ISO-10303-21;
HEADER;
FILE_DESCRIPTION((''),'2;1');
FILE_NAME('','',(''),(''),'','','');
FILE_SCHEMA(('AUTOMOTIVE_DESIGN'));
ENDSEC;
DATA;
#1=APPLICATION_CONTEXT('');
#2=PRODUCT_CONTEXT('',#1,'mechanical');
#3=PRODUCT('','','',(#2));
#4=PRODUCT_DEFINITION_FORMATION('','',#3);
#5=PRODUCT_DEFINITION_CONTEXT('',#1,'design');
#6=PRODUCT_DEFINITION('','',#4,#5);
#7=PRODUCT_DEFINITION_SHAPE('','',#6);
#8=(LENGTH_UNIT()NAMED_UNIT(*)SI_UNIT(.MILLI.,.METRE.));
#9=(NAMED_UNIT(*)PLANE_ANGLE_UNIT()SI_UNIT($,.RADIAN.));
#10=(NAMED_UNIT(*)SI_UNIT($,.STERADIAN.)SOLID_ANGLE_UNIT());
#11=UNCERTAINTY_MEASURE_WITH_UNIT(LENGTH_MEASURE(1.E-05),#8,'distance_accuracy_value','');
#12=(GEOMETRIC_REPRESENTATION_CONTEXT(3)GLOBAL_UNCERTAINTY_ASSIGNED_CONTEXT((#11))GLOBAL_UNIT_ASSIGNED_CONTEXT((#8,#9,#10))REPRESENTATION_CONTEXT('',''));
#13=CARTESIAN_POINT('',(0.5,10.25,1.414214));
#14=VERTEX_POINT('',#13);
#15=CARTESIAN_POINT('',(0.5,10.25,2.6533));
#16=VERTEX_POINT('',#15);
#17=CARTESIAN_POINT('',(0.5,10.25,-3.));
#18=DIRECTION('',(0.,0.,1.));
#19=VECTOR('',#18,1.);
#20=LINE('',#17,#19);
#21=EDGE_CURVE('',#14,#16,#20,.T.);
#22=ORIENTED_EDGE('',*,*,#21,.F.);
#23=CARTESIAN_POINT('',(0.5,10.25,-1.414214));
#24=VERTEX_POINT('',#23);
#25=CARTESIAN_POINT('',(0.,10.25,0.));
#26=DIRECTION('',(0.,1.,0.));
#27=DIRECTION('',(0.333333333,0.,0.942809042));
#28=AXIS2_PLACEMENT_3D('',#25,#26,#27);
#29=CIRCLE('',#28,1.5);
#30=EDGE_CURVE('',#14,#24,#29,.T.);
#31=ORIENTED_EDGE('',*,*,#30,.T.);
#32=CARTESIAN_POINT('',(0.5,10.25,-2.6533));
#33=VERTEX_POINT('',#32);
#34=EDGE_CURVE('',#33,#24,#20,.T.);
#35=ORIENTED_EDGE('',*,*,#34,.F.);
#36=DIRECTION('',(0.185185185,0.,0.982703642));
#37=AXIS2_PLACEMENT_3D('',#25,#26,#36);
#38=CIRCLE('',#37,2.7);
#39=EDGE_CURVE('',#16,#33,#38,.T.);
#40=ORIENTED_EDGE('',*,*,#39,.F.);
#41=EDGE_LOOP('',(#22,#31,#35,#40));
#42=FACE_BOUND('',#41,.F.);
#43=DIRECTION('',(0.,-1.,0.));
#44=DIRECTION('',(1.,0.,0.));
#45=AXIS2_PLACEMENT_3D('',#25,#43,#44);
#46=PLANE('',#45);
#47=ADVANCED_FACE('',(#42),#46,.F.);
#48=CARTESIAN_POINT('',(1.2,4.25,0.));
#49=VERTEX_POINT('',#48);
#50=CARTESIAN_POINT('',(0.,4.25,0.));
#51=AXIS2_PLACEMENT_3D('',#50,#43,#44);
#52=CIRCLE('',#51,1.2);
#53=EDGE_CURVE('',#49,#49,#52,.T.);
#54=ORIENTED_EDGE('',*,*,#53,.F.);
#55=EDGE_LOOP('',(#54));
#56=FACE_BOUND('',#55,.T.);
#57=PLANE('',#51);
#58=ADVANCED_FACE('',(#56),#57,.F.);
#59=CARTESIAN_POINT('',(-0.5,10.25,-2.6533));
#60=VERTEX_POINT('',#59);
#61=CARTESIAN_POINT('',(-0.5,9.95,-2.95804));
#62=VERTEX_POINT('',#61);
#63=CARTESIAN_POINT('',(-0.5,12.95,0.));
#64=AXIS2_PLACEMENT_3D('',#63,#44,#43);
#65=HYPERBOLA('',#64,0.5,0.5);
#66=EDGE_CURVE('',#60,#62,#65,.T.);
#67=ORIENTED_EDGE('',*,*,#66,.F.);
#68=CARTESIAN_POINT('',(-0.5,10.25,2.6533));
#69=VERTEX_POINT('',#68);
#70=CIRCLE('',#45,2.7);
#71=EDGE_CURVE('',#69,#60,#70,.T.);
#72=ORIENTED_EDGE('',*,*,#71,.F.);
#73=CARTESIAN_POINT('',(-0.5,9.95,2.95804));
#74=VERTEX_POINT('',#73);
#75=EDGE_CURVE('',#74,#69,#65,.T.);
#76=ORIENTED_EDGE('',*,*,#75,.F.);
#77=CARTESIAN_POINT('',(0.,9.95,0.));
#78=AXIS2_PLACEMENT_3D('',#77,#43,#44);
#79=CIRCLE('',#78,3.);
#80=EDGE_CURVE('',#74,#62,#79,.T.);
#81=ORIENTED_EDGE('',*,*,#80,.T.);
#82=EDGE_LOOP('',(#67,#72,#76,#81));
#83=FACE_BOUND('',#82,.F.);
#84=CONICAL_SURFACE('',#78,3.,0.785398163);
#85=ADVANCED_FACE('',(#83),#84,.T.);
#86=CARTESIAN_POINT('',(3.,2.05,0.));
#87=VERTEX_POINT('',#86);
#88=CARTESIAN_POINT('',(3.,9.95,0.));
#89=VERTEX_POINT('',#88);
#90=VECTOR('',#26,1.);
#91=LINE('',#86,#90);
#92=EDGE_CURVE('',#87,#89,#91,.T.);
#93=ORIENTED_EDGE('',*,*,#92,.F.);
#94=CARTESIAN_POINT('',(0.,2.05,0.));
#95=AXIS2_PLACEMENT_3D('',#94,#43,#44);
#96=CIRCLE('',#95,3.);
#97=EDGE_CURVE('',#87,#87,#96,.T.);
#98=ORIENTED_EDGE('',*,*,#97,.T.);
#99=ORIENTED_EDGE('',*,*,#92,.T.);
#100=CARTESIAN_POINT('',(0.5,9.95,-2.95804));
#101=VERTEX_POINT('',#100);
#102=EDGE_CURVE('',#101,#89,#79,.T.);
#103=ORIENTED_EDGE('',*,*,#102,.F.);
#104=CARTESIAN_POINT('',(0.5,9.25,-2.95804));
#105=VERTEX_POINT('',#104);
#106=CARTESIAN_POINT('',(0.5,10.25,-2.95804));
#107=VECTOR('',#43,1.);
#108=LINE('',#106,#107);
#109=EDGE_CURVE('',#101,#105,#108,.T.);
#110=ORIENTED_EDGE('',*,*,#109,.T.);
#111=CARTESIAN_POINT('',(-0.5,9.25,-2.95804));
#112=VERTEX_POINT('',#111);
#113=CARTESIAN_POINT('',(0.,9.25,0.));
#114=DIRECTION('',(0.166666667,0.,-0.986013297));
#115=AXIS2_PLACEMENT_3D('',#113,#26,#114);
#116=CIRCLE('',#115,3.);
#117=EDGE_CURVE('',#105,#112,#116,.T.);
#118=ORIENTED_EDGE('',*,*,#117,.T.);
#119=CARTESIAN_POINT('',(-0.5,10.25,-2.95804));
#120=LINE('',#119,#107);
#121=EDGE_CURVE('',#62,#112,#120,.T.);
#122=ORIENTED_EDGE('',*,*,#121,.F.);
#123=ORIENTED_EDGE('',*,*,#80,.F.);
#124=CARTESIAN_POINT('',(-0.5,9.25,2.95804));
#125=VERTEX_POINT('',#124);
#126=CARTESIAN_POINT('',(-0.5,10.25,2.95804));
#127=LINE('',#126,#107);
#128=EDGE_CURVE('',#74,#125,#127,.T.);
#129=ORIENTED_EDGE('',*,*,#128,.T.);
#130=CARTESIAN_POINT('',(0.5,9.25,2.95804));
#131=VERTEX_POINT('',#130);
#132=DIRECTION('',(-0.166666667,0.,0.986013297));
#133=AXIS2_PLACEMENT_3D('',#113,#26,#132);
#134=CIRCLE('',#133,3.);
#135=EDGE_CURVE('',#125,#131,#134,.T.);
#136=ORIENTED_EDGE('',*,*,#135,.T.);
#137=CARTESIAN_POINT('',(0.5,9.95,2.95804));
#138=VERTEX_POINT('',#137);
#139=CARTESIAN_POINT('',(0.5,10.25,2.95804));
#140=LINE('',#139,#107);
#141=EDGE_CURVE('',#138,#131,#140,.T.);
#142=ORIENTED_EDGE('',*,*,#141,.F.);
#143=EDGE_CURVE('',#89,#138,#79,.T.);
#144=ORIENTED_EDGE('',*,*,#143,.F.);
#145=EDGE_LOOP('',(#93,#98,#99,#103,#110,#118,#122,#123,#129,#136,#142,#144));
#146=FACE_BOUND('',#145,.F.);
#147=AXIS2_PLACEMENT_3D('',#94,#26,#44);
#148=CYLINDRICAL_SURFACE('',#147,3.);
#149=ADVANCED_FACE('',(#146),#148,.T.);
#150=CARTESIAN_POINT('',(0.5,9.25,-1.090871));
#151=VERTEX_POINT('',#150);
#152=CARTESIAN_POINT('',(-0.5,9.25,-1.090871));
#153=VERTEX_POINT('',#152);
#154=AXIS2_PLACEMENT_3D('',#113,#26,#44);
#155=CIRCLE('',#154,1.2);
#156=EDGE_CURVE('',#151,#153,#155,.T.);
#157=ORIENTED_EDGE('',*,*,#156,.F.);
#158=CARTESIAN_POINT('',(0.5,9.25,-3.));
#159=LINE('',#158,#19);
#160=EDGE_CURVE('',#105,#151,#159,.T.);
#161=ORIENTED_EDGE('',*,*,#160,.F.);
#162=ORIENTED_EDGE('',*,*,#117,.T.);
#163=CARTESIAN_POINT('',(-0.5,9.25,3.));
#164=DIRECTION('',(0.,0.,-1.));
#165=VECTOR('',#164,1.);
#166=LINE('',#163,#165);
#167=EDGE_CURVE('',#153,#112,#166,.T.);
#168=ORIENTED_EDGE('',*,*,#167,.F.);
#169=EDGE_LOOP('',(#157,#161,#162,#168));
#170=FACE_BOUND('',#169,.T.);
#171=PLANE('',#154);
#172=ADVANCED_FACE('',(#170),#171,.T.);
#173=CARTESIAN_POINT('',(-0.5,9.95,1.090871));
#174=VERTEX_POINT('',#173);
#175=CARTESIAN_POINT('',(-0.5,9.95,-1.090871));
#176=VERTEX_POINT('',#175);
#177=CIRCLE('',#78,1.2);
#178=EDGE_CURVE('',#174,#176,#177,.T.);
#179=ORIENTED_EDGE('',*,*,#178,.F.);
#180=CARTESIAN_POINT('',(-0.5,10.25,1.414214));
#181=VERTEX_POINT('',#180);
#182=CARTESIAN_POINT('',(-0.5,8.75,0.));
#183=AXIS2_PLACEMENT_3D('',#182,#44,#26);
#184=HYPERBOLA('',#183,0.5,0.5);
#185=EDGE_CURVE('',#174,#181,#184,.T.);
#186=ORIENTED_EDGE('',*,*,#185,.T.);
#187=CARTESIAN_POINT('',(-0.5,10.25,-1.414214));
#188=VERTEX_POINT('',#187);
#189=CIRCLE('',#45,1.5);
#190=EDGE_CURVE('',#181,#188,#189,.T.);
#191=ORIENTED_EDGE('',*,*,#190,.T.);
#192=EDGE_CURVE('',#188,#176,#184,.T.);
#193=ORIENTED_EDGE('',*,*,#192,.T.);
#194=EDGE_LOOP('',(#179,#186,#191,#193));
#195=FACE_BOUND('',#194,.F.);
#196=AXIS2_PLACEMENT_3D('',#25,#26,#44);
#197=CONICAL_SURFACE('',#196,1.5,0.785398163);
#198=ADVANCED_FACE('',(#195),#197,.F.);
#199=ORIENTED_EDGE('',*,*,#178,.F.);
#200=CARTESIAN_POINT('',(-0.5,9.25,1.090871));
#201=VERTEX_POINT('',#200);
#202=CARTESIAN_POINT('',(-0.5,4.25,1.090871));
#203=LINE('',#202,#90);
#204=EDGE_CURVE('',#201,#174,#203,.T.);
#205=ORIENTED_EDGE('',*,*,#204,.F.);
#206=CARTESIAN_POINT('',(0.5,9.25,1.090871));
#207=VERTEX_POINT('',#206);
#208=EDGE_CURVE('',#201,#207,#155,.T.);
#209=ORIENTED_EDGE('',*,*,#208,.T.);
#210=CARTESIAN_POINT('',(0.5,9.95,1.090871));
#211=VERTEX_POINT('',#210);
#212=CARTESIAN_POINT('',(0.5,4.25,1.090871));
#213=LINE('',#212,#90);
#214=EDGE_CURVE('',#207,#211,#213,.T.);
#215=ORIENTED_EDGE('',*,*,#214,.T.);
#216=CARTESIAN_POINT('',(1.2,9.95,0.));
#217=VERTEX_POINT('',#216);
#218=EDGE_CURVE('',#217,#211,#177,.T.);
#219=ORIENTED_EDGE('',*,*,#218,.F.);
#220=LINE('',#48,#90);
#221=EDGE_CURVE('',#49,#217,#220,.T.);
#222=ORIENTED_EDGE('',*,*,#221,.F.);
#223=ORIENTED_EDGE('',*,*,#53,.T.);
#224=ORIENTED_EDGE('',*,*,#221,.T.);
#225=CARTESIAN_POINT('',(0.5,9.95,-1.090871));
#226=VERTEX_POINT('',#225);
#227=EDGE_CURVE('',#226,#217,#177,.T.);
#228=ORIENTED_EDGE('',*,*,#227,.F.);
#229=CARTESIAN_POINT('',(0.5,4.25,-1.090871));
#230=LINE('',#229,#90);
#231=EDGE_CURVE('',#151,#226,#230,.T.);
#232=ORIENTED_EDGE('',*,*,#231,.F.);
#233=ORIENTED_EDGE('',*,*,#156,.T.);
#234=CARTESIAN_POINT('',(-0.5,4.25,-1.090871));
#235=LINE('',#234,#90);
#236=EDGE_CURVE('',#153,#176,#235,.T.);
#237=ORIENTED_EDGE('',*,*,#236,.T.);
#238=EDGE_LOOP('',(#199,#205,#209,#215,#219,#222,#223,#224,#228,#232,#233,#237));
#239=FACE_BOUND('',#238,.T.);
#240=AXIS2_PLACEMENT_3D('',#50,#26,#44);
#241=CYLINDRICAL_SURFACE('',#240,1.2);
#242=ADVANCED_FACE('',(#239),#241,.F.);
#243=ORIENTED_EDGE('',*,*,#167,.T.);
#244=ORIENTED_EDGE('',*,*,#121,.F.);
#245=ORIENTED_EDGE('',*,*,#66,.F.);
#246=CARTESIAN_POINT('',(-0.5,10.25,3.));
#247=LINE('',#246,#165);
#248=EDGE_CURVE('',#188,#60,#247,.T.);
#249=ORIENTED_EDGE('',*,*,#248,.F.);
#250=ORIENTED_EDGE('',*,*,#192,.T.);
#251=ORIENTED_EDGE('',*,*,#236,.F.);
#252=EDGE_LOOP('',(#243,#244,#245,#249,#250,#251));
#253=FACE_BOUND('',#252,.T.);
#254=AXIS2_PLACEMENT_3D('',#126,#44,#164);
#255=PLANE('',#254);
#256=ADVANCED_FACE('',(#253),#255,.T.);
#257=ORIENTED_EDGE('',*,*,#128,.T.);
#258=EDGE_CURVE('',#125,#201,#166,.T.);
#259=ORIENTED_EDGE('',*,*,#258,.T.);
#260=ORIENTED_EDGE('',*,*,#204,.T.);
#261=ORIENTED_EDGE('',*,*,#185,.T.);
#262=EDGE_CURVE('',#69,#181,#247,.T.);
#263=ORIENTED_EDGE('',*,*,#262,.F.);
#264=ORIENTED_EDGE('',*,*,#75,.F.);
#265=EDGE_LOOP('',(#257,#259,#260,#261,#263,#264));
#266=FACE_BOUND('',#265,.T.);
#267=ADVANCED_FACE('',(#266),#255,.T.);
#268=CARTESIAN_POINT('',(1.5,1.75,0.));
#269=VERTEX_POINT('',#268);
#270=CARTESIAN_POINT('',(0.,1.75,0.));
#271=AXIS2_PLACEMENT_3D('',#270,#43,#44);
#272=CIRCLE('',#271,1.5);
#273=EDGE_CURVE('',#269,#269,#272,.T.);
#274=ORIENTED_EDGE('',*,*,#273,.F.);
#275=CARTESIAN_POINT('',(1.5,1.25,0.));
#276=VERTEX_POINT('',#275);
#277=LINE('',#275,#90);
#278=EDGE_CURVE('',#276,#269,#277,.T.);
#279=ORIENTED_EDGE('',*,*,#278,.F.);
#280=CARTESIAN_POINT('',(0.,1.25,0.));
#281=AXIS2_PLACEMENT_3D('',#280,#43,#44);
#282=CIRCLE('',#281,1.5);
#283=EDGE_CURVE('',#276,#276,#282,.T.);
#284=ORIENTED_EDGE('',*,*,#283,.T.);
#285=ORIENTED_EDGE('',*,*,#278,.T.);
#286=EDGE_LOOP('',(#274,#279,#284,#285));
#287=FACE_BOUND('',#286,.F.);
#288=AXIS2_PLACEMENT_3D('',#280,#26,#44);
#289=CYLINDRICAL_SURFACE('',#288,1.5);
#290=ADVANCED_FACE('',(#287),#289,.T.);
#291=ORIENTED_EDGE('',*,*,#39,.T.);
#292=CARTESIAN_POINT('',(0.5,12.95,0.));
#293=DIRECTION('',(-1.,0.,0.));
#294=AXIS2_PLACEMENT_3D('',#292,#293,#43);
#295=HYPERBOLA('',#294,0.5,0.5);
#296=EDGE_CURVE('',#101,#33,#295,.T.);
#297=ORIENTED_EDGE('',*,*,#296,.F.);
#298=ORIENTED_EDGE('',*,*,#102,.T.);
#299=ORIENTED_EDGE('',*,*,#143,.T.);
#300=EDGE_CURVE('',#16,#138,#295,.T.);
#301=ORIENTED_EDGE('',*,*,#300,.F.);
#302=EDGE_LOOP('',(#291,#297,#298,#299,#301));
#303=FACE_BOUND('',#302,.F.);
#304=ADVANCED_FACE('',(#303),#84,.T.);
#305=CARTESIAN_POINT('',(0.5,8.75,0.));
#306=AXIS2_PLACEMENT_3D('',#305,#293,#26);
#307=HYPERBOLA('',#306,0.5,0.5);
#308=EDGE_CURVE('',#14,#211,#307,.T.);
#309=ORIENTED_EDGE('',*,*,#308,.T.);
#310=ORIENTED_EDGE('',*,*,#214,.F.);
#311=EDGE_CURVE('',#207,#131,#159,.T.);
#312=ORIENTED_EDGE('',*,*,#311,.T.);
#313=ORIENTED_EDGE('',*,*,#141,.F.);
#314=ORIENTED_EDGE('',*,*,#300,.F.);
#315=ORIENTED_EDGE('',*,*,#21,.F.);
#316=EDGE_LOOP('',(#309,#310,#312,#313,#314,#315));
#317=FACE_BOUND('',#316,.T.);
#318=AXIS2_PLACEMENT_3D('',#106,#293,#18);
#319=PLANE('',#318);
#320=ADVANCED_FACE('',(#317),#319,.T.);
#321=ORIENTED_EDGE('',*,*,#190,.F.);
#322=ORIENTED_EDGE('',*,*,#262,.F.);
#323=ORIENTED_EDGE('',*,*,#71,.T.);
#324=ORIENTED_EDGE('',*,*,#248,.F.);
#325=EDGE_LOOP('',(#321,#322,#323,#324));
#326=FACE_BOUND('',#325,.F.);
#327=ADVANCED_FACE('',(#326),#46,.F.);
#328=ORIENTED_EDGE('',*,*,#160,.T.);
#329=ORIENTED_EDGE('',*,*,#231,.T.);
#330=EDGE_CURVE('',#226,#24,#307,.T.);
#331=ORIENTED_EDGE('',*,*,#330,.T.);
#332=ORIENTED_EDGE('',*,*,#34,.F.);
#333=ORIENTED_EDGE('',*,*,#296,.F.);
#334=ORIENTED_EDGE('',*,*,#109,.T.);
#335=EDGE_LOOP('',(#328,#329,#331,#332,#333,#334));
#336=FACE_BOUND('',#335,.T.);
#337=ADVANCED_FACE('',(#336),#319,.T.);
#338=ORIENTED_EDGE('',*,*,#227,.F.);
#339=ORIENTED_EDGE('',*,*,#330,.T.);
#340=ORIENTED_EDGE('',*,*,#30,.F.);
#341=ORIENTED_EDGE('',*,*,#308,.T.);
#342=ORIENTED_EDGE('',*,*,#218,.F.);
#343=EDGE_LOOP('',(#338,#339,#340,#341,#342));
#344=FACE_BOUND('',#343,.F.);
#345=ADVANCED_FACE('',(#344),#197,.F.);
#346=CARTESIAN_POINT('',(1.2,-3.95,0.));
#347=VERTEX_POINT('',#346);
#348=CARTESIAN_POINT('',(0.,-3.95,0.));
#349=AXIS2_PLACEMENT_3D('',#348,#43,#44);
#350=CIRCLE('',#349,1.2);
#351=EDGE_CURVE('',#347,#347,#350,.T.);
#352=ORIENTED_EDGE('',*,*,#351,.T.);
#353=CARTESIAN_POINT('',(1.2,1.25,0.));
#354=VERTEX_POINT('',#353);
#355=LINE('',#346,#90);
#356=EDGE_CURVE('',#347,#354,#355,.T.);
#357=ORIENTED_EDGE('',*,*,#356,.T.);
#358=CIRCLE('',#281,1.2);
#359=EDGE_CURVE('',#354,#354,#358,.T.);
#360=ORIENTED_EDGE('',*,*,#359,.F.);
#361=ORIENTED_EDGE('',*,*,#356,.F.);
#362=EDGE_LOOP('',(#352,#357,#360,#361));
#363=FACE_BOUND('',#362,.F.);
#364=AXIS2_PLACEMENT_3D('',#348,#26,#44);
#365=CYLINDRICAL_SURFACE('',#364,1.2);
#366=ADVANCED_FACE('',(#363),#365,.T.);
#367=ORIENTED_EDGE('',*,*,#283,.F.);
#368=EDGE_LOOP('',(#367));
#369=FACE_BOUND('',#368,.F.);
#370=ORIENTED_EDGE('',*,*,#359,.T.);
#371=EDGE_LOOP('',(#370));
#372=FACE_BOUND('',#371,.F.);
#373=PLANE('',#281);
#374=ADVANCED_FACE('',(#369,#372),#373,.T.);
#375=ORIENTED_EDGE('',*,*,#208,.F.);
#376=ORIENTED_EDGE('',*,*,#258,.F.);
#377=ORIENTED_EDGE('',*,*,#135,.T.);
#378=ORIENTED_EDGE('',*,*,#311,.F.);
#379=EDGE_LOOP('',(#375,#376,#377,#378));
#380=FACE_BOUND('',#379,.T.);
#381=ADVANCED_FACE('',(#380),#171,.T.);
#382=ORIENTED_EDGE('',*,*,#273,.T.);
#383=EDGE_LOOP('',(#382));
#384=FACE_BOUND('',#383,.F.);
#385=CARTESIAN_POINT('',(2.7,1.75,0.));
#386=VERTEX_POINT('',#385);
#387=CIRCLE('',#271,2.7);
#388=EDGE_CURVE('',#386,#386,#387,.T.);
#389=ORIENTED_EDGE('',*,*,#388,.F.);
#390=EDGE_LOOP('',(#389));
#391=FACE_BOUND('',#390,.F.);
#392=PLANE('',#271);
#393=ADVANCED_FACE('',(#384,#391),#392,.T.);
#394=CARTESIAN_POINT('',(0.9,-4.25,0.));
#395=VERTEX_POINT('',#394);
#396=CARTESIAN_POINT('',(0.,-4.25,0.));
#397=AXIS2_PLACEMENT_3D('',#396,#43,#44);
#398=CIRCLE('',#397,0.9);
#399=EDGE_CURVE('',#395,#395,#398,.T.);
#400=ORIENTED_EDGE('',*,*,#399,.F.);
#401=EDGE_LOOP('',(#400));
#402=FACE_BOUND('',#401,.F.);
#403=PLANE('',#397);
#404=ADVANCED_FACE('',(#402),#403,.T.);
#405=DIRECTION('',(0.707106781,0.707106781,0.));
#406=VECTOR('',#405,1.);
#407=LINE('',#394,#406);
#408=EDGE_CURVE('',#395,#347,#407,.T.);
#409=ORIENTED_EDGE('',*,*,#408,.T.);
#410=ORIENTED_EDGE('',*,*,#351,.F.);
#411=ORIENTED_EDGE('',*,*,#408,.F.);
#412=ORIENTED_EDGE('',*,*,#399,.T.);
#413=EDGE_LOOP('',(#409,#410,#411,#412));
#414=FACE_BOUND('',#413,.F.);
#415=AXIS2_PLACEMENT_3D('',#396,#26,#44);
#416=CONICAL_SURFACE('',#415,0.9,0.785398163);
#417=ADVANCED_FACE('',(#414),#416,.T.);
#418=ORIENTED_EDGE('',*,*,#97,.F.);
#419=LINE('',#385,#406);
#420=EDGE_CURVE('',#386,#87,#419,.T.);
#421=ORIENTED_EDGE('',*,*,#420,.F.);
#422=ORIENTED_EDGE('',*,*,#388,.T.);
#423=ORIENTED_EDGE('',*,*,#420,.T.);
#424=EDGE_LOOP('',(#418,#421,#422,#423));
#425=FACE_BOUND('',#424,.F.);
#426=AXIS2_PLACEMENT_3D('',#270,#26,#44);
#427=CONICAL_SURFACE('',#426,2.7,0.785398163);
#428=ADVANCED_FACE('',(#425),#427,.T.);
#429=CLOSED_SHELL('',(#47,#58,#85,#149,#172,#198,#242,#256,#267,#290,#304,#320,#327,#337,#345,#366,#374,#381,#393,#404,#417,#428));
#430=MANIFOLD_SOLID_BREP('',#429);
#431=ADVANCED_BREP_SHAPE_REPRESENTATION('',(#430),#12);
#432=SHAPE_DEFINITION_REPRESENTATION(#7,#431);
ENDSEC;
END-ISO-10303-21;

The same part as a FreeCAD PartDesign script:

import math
import FreeCAD as App
import Part
import Sketcher
Q = App.Units.Quantity


def add_polygon(sketch, points):
    """Adds a closed chain of lines whose ends are joined by coincident constraints."""
    first, n = sketch.GeometryCount, len(points)
    for a, b in zip(points, points[1:] + points[:1]):
        sketch.addGeometry(Part.LineSegment(App.Vector(*a, 0), App.Vector(*b, 0)), False)
    for i in range(n):
        sketch.addConstraint(Sketcher.Constraint("Coincident", first + i, 2, first + (i + 1) % n, 1))

doc = App.newDocument("Part")
body = doc.addObject("PartDesign::Body", "Body")

sketch1 = body.newObject("Sketcher::SketchObject", "Sketch")
sketch1.AttachmentSupport = (doc.getObject("XY_Plane"), [""])
sketch1.MapMode = "FlatFace"
add_polygon(sketch1, [(0, 4.25), (0, -4.25), (0.9, -4.25), (1.2, -3.95), (1.2, 1.25), (1.5, 1.25), (1.5, 1.75), (2.7, 1.75), (3, 2.05), (3, 9.95), (2.7, 10.25), (1.5, 10.25), (1.2, 9.95), (1.2, 4.25)])
sketch1.addConstraint(Sketcher.Constraint("Vertical", 0))
sketch1.addConstraint(Sketcher.Constraint("Horizontal", 1))
sketch1.addConstraint(Sketcher.Constraint("Vertical", 3))
sketch1.addConstraint(Sketcher.Constraint("Horizontal", 4))
sketch1.addConstraint(Sketcher.Constraint("Vertical", 5))
sketch1.addConstraint(Sketcher.Constraint("Horizontal", 6))
sketch1.addConstraint(Sketcher.Constraint("Vertical", 8))
sketch1.addConstraint(Sketcher.Constraint("Horizontal", 10))
sketch1.addConstraint(Sketcher.Constraint("Vertical", 12))
sketch1.addConstraint(Sketcher.Constraint("Horizontal", 13))
sketch1.addConstraint(Sketcher.Constraint("Symmetric", 0, 2, 13, 2, -1, 1))
sketch1.addConstraint(Sketcher.Constraint("Parallel", 2, 7))
sketch1.addConstraint(Sketcher.Constraint("Perpendicular", 7, 9))
sketch1.addConstraint(Sketcher.Constraint("Perpendicular", 9, 11))
sketch1.addConstraint(Sketcher.Constraint("Horizontal", 8, 2, 11, 2))
sketch1.addConstraint(Sketcher.Constraint("Vertical", 6, 2, 9, 2))
sketch1.addConstraint(Sketcher.Constraint("Vertical", 5, 2, 10, 2))
sketch1.addConstraint(Sketcher.Constraint("Vertical", 3, 2, 11, 2))
sketch1.addConstraint(Sketcher.Constraint("Equal", 10, 13))
sketch1.addConstraint(Sketcher.Constraint("Equal", 2, 7))
sketch1.addConstraint(Sketcher.Constraint("Equal", 7, 9))
sketch1.addConstraint(Sketcher.Constraint("DistanceX", 4, 1, 4, 2, Q("0.3 mm")))
sketch1.addConstraint(Sketcher.Constraint("DistanceY", 0, 2, 0, 1, Q("8.5 mm")))
sketch1.addConstraint(Sketcher.Constraint("DistanceY", 5, 1, 5, 2, Q("0.5 mm")))
sketch1.addConstraint(Sketcher.Constraint("DistanceX", -1, 1, 7, 2, Q("3 mm")))
sketch1.addConstraint(Sketcher.Constraint("DistanceY", 1, 2, 5, 2, Q("6 mm")))
sketch1.addConstraint(Sketcher.Constraint("DistanceY", 6, 2, 9, 2, Q("8.5 mm")))
revolution = body.newObject("PartDesign::Revolution", "Revolution")
revolution.Profile = sketch1
revolution.ReferenceAxis = (sketch1, ["V_Axis"])
revolution.Angle = 360

sketch2 = body.newObject("Sketcher::SketchObject", "Sketch001")
sketch2.AttachmentSupport = (doc.getObject("XZ_Plane"), [""])
sketch2.MapMode = "FlatFace"
sketch2.AttachmentOffset = App.Placement(App.Vector(0, 0, -10.25), App.Rotation())
sketch2.addGeometry(Part.ArcOfCircle(Part.Circle(App.Vector(0, 0, 0), App.Vector(0, 0, 1), 3), math.radians(-99.59), math.radians(-80.41)), False)
sketch2.addGeometry(Part.LineSegment(App.Vector(-0.5, -3, 0), App.Vector(-0.5, 3, 0)), False)
sketch2.addGeometry(Part.ArcOfCircle(Part.Circle(App.Vector(0, 0, 0), App.Vector(0, 0, 1), 3), math.radians(80.41), math.radians(99.59)), False)
sketch2.addGeometry(Part.LineSegment(App.Vector(0.5, 3, 0), App.Vector(0.5, -3, 0)), False)
sketch2.addConstraint(Sketcher.Constraint("Coincident", 0, 1, 1, 1))
sketch2.addConstraint(Sketcher.Constraint("Coincident", 1, 2, 2, 2))
sketch2.addConstraint(Sketcher.Constraint("Coincident", 2, 1, 3, 1))
sketch2.addConstraint(Sketcher.Constraint("Coincident", 3, 2, 0, 2))
sketch2.addConstraint(Sketcher.Constraint("Vertical", 1))
sketch2.addConstraint(Sketcher.Constraint("Vertical", 3))
sketch2.addConstraint(Sketcher.Constraint("Coincident", 0, 3, -1, 1))
sketch2.addConstraint(Sketcher.Constraint("Coincident", 2, 3, -1, 1))
sketch2.addConstraint(Sketcher.Constraint("Equal", 0, 2))
sketch2.addConstraint(Sketcher.Constraint("Horizontal", 1, 2, 2, 1))
sketch2.addConstraint(Sketcher.Constraint("Radius", 0, Q("3 mm")))
sketch2.addConstraint(Sketcher.Constraint("DistanceX", 1, 2, 2, 1, Q("1 mm")))
pocket1 = body.newObject("PartDesign::Pocket", "Pocket")
pocket1.Profile = sketch2
pocket1.Length = 1
pocket1.Reversed = True

doc.recompute()
